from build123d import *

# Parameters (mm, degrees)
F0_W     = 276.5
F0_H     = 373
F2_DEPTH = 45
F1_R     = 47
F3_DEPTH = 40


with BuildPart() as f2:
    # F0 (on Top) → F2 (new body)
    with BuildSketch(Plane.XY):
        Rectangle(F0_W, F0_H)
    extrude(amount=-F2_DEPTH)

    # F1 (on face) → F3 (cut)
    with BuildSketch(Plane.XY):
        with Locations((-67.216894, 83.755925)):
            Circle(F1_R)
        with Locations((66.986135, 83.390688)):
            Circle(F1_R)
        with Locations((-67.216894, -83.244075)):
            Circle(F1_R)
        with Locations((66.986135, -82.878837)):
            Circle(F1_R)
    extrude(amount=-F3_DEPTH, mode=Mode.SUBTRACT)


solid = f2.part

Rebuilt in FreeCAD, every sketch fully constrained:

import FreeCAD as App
import Part
import Sketcher
from FreeCAD import Vector


def add_polygon(sketch, points):
    """Adds a closed chain of lines whose ends are joined by coincident constraints."""
    first, n = sketch.GeometryCount, len(points)
    for a, b in zip(points, points[1:] + points[:1]):
        sketch.addGeometry(Part.LineSegment(App.Vector(*a, 0), App.Vector(*b, 0)), False)
    for i in range(n):
        sketch.addConstraint(Sketcher.Constraint("Coincident", first + i, 2, first + (i + 1) % n, 1))

doc = App.newDocument("Part")
params = doc.addObject("Spreadsheet::Sheet", "Params")
for row, (alias, value) in enumerate([
    ("sketch1_height", "373 mm"),
    ("sketch1_width", "276.5 mm"),
    ("pad1_length", "45 mm"),
    ("sketch2_diameter", "94 mm"),
    ("pocket1_length", "40 mm"),
], start=1):
    params.set(f"A{row}", alias)
    params.set(f"B{row}", "=" + value)
    params.setAlias(f"B{row}", alias)

body = doc.addObject("PartDesign::Body", "Body")

sketch1 = body.newObject("Sketcher::SketchObject", "Sketch")
sketch1.AttachmentSupport = (doc.getObject("XY_Plane"), [""])
sketch1.MapMode = "FlatFace"
add_polygon(sketch1, [(-138.25, 186.5), (-138.25, -186.5), (138.25, -186.5), (138.25, 186.5)])
sketch1.addConstraint([
    Sketcher.Constraint("Vertical", 0),
    Sketcher.Constraint("Horizontal", 1),
    Sketcher.Constraint("Vertical", 2),
    Sketcher.Constraint("Horizontal", 3),
    Sketcher.Constraint("Symmetric", 0, 2, 2, 2, -1, 1),
    Sketcher.Constraint("DistanceY", 0, 2, 0, 1, 373.0),
    Sketcher.Constraint("DistanceX", 1, 1, 1, 2, 276.5),
])
sketch1.setExpression("Constraints[9]", "Params.sketch1_height")
sketch1.setExpression("Constraints[10]", "Params.sketch1_width")
pad1 = body.newObject("PartDesign::Pad", "Pad")
pad1.Profile = sketch1
pad1.setExpression("Length", "Params.pad1_length")
pad1.Reversed = True

sketch2 = body.newObject("Sketcher::SketchObject", "Sketch001")
sketch2.AttachmentSupport = (doc.getObject("XY_Plane"), [""])
sketch2.MapMode = "FlatFace"
sketch2.addGeometry([
    Part.Circle(Vector(-67.216894, 83.755925, 0), Vector(0, 0, 1), 47),
    Part.Circle(Vector(66.986135, 83.390688, 0), Vector(0, 0, 1), 47),
    Part.Circle(Vector(-67.216894, -83.244075, 0), Vector(0, 0, 1), 47),
    Part.Circle(Vector(66.986135, -82.878837, 0), Vector(0, 0, 1), 47),
], False)
sketch2.addConstraint([
    Sketcher.Constraint("Equal", 0, 1),
    Sketcher.Constraint("Equal", 1, 2),
    Sketcher.Constraint("Equal", 2, 3),
    Sketcher.Constraint("Vertical", 0, 3, 2, 3),
    Sketcher.Constraint("Vertical", 1, 3, 3, 3),
    Sketcher.Constraint("Diameter", 0, 94.0),
    Sketcher.Constraint("DistanceY", 2, 3, 0, 3, 167.0),
    Sketcher.Constraint("DistanceX", 0, 3, 1, 3, 134.203029),
    Sketcher.Constraint("DistanceX", 0, 3, -1, 1, 67.216894),
    Sketcher.Constraint("DistanceY", -1, 1, 0, 3, 83.755925),
    Sketcher.Constraint("DistanceY", -1, 1, 1, 3, 83.390688),
    Sketcher.Constraint("DistanceY", 3, 3, -1, 1, 82.878837),
])
sketch2.setExpression("Constraints[5]", "Params.sketch2_diameter")
pocket1 = body.newObject("PartDesign::Pocket", "Pocket")
pocket1.Profile = sketch2
pocket1.setExpression("Length", "Params.pocket1_length")

doc.recompute()
